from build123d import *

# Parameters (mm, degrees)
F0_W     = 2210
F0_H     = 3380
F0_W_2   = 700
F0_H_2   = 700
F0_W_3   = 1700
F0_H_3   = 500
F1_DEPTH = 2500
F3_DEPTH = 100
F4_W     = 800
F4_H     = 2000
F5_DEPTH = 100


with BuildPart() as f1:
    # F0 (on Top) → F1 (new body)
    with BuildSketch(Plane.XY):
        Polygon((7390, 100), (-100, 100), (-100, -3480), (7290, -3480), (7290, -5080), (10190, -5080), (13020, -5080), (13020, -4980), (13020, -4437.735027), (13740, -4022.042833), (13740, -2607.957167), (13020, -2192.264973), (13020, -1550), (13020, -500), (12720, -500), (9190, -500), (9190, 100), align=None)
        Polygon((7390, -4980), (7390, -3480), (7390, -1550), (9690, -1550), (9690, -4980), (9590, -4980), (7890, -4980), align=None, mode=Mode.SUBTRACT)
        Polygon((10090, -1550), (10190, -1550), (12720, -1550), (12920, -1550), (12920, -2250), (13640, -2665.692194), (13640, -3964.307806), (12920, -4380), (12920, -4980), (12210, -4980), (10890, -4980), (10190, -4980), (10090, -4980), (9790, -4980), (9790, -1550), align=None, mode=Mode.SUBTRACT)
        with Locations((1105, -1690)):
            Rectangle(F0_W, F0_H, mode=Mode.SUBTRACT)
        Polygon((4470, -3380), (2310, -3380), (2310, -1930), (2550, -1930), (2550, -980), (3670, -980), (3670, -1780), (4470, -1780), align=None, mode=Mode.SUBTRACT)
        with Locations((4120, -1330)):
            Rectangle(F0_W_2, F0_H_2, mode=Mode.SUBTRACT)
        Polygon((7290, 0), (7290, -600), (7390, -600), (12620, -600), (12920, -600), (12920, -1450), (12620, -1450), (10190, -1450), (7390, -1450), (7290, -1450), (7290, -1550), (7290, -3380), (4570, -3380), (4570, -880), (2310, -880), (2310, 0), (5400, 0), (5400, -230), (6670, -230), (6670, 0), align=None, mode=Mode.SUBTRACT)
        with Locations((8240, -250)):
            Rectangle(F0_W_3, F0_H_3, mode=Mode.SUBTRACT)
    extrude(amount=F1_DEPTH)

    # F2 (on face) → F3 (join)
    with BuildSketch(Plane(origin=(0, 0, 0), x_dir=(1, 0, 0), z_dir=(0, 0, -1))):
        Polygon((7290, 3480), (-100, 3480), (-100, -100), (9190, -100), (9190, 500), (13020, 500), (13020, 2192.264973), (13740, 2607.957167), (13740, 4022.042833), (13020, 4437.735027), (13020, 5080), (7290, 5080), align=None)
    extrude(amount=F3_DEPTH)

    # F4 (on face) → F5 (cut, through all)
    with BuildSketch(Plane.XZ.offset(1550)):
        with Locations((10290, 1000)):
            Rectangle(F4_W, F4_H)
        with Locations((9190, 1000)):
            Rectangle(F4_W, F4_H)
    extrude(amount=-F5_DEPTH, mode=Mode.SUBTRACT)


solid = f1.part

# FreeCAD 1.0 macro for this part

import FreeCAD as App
import Part
import Sketcher
from FreeCAD import Vector
Q = App.Units.Quantity


def add_polygon(sketch, points):
    """Adds a closed chain of lines whose ends are joined by coincident constraints."""
    first, n = sketch.GeometryCount, len(points)
    for a, b in zip(points, points[1:] + points[:1]):
        sketch.addGeometry(Part.LineSegment(App.Vector(*a, 0), App.Vector(*b, 0)), False)
    for i in range(n):
        sketch.addConstraint(Sketcher.Constraint("Coincident", first + i, 2, first + (i + 1) % n, 1))

doc = App.newDocument("Part")
params = doc.addObject("Spreadsheet::Sheet", "Params")
for row, (alias, value) in enumerate([
    ("sketch1_width", "7390 mm"),
    ("sketch1_width2", "5730 mm"),
    ("sketch1_width3", "3830 mm"),
    ("sketch1_width4", "2300 mm"),
    ("sketch1_width5", "3130 mm"),
    ("pad1_length", "2500 mm"),
    ("sketch2_width", "7390 mm"),
    ("sketch2_width2", "9290 mm"),
    ("sketch2_width3", "3830 mm"),
    ("sketch2_height", "3580 mm"),
    ("sketch2_height2", "600 mm"),
    ("pad2_length", "100 mm"),
    ("sketch3_width", "800 mm"),
    ("sketch3_height", "2000 mm"),
    ("pocket1_length", "100 mm"),
], start=1):
    params.set(f"A{row}", alias)
    params.set(f"B{row}", "=" + value)
    params.setAlias(f"B{row}", alias)

body = doc.addObject("PartDesign::Body", "Body")

# Sketch on XY plane
sketch1 = body.newObject("Sketcher::SketchObject", "Sketch")
sketch1.AttachmentSupport = (doc.getObject("XY_Plane"), [""])
sketch1.MapMode = "FlatFace"
add_polygon(sketch1, [(-100, 100), (-100, -3480), (7290, -3480), (7290, -5080), (13020, -5080), (13020, -4437.735027), (13740, -4022.042833), (13740, -2607.957167), (13020, -2192.264973), (13020, -500), (9190, -500), (9190, 100)])  # lines 0-11
add_polygon(sketch1, [(9690, -4980), (7390, -4980), (7390, -1550), (9690, -1550)])  # lines 12-15
add_polygon(sketch1, [(9790, -1550), (12920, -1550), (12920, -2250), (13640, -2665.692194), (13640, -3964.307806), (12920, -4380), (12920, -4980), (9790, -4980)])  # lines 16-23
add_polygon(sketch1, [(4470, -1780), (4470, -3380), (2310, -3380), (2310, -1930), (2550, -1930), (2550, -980), (3670, -980), (3670, -1780)])  # lines 24-31
add_polygon(sketch1, [(2210, -3380), (0, -3380), (0, 0), (2210, 0)])  # lines 32-35
add_polygon(sketch1, [(4470, -1680), (3770, -1680), (3770, -980), (4470, -980)])  # lines 36-39
add_polygon(sketch1, [(6670, 0), (7290, 0), (7290, -600), (12920, -600), (12920, -1450), (7290, -1450), (7290, -3380), (4570, -3380), (4570, -880), (2310, -880), (2310, 0), (5400, 0), (5400, -230), (6670, -230)])  # lines 40-53
add_polygon(sketch1, [(9090, -500), (7390, -500), (7390, 0), (9090, 0)])  # lines 54-57
sketch1.addConstraint([
    Sketcher.Constraint("Vertical", 0),
    Sketcher.Constraint("Horizontal", 1),
    Sketcher.Constraint("Vertical", 2),
    Sketcher.Constraint("Horizontal", 3),
    Sketcher.Constraint("Vertical", 4),
    Sketcher.Constraint("Vertical", 6),
    Sketcher.Constraint("Vertical", 8),
    Sketcher.Constraint("Horizontal", 9),
    Sketcher.Constraint("Vertical", 10),
    Sketcher.Constraint("Horizontal", 11),
    Sketcher.Constraint("Horizontal", 12),
    Sketcher.Constraint("Vertical", 13),
    Sketcher.Constraint("Horizontal", 14),
    Sketcher.Constraint("Vertical", 15),
    Sketcher.Constraint("Horizontal", 16),
    Sketcher.Constraint("Vertical", 17),
    Sketcher.Constraint("Vertical", 19),
    Sketcher.Constraint("Vertical", 21),
    Sketcher.Constraint("Horizontal", 22),
    Sketcher.Constraint("Vertical", 23),
    Sketcher.Constraint("Vertical", 24),
    Sketcher.Constraint("Horizontal", 25),
    Sketcher.Constraint("Vertical", 26),
    Sketcher.Constraint("Horizontal", 27),
    Sketcher.Constraint("Vertical", 28),
    Sketcher.Constraint("Horizontal", 29),
    Sketcher.Constraint("Vertical", 30),
    Sketcher.Constraint("Horizontal", 31),
    Sketcher.Constraint("Horizontal", 32),
    Sketcher.Constraint("Vertical", 33),
    Sketcher.Constraint("Horizontal", 34),
    Sketcher.Constraint("Vertical", 35),
    Sketcher.Constraint("Horizontal", 36),
    Sketcher.Constraint("Vertical", 37),
    Sketcher.Constraint("Horizontal", 38),
    Sketcher.Constraint("Vertical", 39),
    Sketcher.Constraint("Horizontal", 40),
    Sketcher.Constraint("Vertical", 41),
    Sketcher.Constraint("Horizontal", 42),
    Sketcher.Constraint("Vertical", 43),
    Sketcher.Constraint("Horizontal", 44),
    Sketcher.Constraint("Vertical", 45),
    Sketcher.Constraint("Horizontal", 46),
    Sketcher.Constraint("Vertical", 47),
    Sketcher.Constraint("Horizontal", 48),
    Sketcher.Constraint("Vertical", 49),
    Sketcher.Constraint("Horizontal", 50),
    Sketcher.Constraint("Vertical", 51),
    Sketcher.Constraint("Horizontal", 52),
    Sketcher.Constraint("Vertical", 53),
    Sketcher.Constraint("Horizontal", 54),
    Sketcher.Constraint("Vertical", 55),
    Sketcher.Constraint("Horizontal", 56),
    Sketcher.Constraint("Vertical", 57),
    Sketcher.Constraint("Coincident", 33, 2, -1, 1),
    Sketcher.Constraint("PointOnObject", 40, 2, -1),
    Sketcher.Constraint("PointOnObject", 49, 2, -1),
    Sketcher.Constraint("PointOnObject", 55, 2, -1),
    Sketcher.Constraint("Parallel", 7, 18),
    Sketcher.Constraint("Parallel", 5, 20),
    Sketcher.Constraint("Horizontal", 14, 2, 16, 2),
    Sketcher.Constraint("Horizontal", 15, 2, 21, 2),
    Sketcher.Constraint("Horizontal", 25, 2, 32, 2),
    Sketcher.Constraint("Horizontal", 29, 2, 37, 2),
    Sketcher.Constraint("Horizontal", 35, 2, 45, 2),
    Sketcher.Constraint("Horizontal", 9, 2, 54, 2),
    Sketcher.Constraint("Vertical", 4, 2, 7, 2),
    Sketcher.Constraint("Vertical", 17, 2, 20, 2),
    Sketcher.Constraint("Vertical", 31, 2, 38, 2),
    Sketcher.Constraint("Vertical", 2, 2, 40, 2),
    Sketcher.Constraint("Vertical", 21, 2, 42, 2),
    Sketcher.Constraint("Vertical", 41, 2, 44, 2),
    Sketcher.Constraint("Vertical", 26, 2, 48, 2),
    Sketcher.Constraint("Vertical", 13, 2, 54, 2),
    Sketcher.Constraint("Equal", 38, 17),
    Sketcher.Constraint("Equal", 10, 21),
    Sketcher.Constraint("Equal", 2, 24),
    Sketcher.Constraint("Equal", 31, 30),
    Sketcher.Constraint("Equal", 17, 37),
    Sketcher.Constraint("Equal", 21, 41),
    Sketcher.Constraint("Equal", 5, 7),
    Sketcher.Constraint("Equal", 7, 18),
    Sketcher.Constraint("DistanceX", 1, 1, 1, 2, Q("7390 mm")),
    Sketcher.Constraint("DistanceX", 3, 1, 3, 2, Q("5730 mm")),
    Sketcher.Constraint("DistanceX", 9, 2, 9, 1, Q("3830 mm")),
    Sketcher.Constraint("DistanceX", 12, 2, 12, 1, Q("2300 mm")),
    Sketcher.Constraint("DistanceX", 16, 1, 16, 2, Q("3130 mm")),
    Sketcher.Constraint("DistanceX", 25, 2, 25, 1, Q("2160 mm")),
    Sketcher.Constraint("DistanceX", 27, 1, 27, 2, Q("240 mm")),
    Sketcher.Constraint("DistanceX", 29, 1, 29, 2, Q("1120 mm")),
    Sketcher.Constraint("DistanceX", 32, 2, 32, 1, Q("2210 mm")),
    Sketcher.Constraint("DistanceX", 36, 2, 36, 1, Q("700 mm")),
    Sketcher.Constraint("DistanceX", 40, 1, 40, 2, Q("620 mm")),
    Sketcher.Constraint("DistanceX", 42, 1, 42, 2, Q("5630 mm")),
    Sketcher.Constraint("DistanceX", 46, 2, 46, 1, Q("2720 mm")),
    Sketcher.Constraint("DistanceX", 48, 2, 48, 1, Q("2260 mm")),
    Sketcher.Constraint("DistanceX", 50, 1, 50, 2, Q("3090 mm")),
    Sketcher.Constraint("DistanceX", 54, 2, 54, 1, Q("1700 mm")),
    Sketcher.Constraint("DistanceY", 0, 2, 0, 1, Q("3580 mm")),
    Sketcher.Constraint("DistanceY", 2, 2, 2, 1, Q("1600 mm")),
    Sketcher.Constraint("DistanceY", 10, 1, 10, 2, Q("600 mm")),
    Sketcher.Constraint("DistanceY", 13, 1, 13, 2, Q("3430 mm")),
    Sketcher.Constraint("DistanceY", 26, 1, 26, 2, Q("1450 mm")),
    Sketcher.Constraint("DistanceY", 33, 1, 33, 2, Q("3380 mm")),
    Sketcher.Constraint("DistanceY", 43, 2, 43, 1, Q("850 mm")),
    Sketcher.Constraint("DistanceY", 47, 1, 47, 2, Q("2500 mm")),
    Sketcher.Constraint("DistanceY", 51, 2, 51, 1, Q("230 mm")),
    Sketcher.Constraint("DistanceY", 55, 1, 55, 2, Q("500 mm")),
    Sketcher.Constraint("Angle", 5, Q("30 deg")),
    Sketcher.Constraint("DistanceX", 0, 2, -1, 1, Q("100 mm")),
    Sketcher.Constraint("DistanceX", -1, 1, 5, 2, Q("13740 mm")),
    Sketcher.Constraint("DistanceX", -1, 1, 12, 2, Q("7390 mm")),
    Sketcher.Constraint("DistanceY", 12, 2, -1, 1, Q("4980 mm")),
    Sketcher.Constraint("DistanceY", 4, 1, 4, 2, Q("642.264973 mm")),
    Sketcher.Constraint("DistanceY", 6, 1, 6, 2, Q("1414.085666 mm")),
])
sketch1.setExpression("Constraints[140]", "Params.sketch1_width")
sketch1.setExpression("Constraints[141]", "Params.sketch1_width2")
sketch1.setExpression("Constraints[142]", "Params.sketch1_width3")
sketch1.setExpression("Constraints[143]", "Params.sketch1_width4")
sketch1.setExpression("Constraints[144]", "Params.sketch1_width5")
pad1 = body.newObject("PartDesign::Pad", "Pad")
pad1.Profile = sketch1
pad1.setExpression("Length", "Params.pad1_length")

# Sketch on XY plane
sketch2 = body.newObject("Sketcher::SketchObject", "Sketch001")
sketch2.AttachmentSupport = (doc.getObject("XY_Plane"), [""])
sketch2.MapMode = "FlatFace"
add_polygon(sketch2, [(7290, -3480), (-100, -3480), (-100, 100), (9190, 100), (9190, -500), (13020, -500), (13020, -2192.264973), (13740, -2607.957167), (13740, -4022.042833), (13020, -4437.735027), (13020, -5080), (7290, -5080)])  # lines 0-11
sketch2.addConstraint([
    Sketcher.Constraint("Horizontal", 0),
    Sketcher.Constraint("Vertical", 1),
    Sketcher.Constraint("Horizontal", 2),
    Sketcher.Constraint("Vertical", 3),
    Sketcher.Constraint("Horizontal", 4),
    Sketcher.Constraint("Vertical", 5),
    Sketcher.Constraint("Vertical", 7),
    Sketcher.Constraint("Vertical", 9),
    Sketcher.Constraint("Horizontal", 10),
    Sketcher.Constraint("Vertical", 11),
    Sketcher.Constraint("Vertical", 5, 2, 8, 2),
    Sketcher.Constraint("Equal", 6, 8),
    Sketcher.Constraint("DistanceX", 0, 2, 0, 1, Q("7390 mm")),
    Sketcher.Constraint("DistanceX", 2, 1, 2, 2, Q("9290 mm")),
    Sketcher.Constraint("DistanceX", 4, 1, 4, 2, Q("3830 mm")),
    Sketcher.Constraint("DistanceY", 1, 1, 1, 2, Q("3580 mm")),
    Sketcher.Constraint("DistanceY", 3, 2, 3, 1, Q("600 mm")),
    Sketcher.Constraint("DistanceY", 11, 1, 11, 2, Q("1600 mm")),
    Sketcher.Constraint("Angle", 6, Q("-30 deg")),
    Sketcher.Constraint("DistanceX", 0, 2, -1, 1, Q("100 mm")),
    Sketcher.Constraint("DistanceY", 0, 2, -1, 1, Q("3480 mm")),
    Sketcher.Constraint("DistanceX", -1, 1, 6, 2, Q("13740 mm")),
    Sketcher.Constraint("DistanceY", 5, 2, 5, 1, Q("1692.264973 mm")),
    Sketcher.Constraint("DistanceY", 7, 2, 7, 1, Q("1414.085666 mm")),
])
sketch2.setExpression("Constraints[24]", "Params.sketch2_width")
sketch2.setExpression("Constraints[25]", "Params.sketch2_width2")
sketch2.setExpression("Constraints[26]", "Params.sketch2_width3")
sketch2.setExpression("Constraints[27]", "Params.sketch2_height")
sketch2.setExpression("Constraints[28]", "Params.sketch2_height2")
pad2 = body.newObject("PartDesign::Pad", "Pad001")
pad2.Profile = sketch2
pad2.setExpression("Length", "Params.pad2_length")
pad2.Reversed = True

# Sketch on XZ plane
sketch3 = body.newObject("Sketcher::SketchObject", "Sketch002")
sketch3.AttachmentSupport = (doc.getObject("XZ_Plane"), [""])
sketch3.MapMode = "FlatFace"
sketch3.AttachmentOffset = App.Placement(Vector(0, 0, 1550), App.Rotation())
add_polygon(sketch3, [(9890, 2000), (9890, 0), (10690, 0), (10690, 2000)])  # lines 0-3
add_polygon(sketch3, [(8790, 2000), (8790, 0), (9590, 0), (9590, 2000)])  # lines 4-7
sketch3.addConstraint([
    Sketcher.Constraint("Vertical", 0),
    Sketcher.Constraint("Horizontal", 1),
    Sketcher.Constraint("Vertical", 2),
    Sketcher.Constraint("Horizontal", 3),
    Sketcher.Constraint("Vertical", 4),
    Sketcher.Constraint("Horizontal", 5),
    Sketcher.Constraint("Vertical", 6),
    Sketcher.Constraint("Horizontal", 7),
    Sketcher.Constraint("PointOnObject", 0, 2, -1),
    Sketcher.Constraint("PointOnObject", 4, 2, -1),
    Sketcher.Constraint("Horizontal", 3, 2, 6, 2),
    Sketcher.Constraint("Equal", 3, 5),
    Sketcher.Constraint("DistanceX", 1, 1, 1, 2, Q("800 mm")),
    Sketcher.Constraint("DistanceY", 0, 2, 0, 1, Q("2000 mm")),
    Sketcher.Constraint("DistanceX", -1, 1, 0, 2, Q("9890 mm")),
    Sketcher.Constraint("DistanceX", -1, 1, 4, 2, Q("8790 mm")),
])
sketch3.setExpression("Constraints[20]", "Params.sketch3_width")
sketch3.setExpression("Constraints[21]", "Params.sketch3_height")
pocket1 = body.newObject("PartDesign::Pocket", "Pocket")
pocket1.Profile = sketch3
pocket1.setExpression("Length", "Params.pocket1_length")

doc.recompute()
